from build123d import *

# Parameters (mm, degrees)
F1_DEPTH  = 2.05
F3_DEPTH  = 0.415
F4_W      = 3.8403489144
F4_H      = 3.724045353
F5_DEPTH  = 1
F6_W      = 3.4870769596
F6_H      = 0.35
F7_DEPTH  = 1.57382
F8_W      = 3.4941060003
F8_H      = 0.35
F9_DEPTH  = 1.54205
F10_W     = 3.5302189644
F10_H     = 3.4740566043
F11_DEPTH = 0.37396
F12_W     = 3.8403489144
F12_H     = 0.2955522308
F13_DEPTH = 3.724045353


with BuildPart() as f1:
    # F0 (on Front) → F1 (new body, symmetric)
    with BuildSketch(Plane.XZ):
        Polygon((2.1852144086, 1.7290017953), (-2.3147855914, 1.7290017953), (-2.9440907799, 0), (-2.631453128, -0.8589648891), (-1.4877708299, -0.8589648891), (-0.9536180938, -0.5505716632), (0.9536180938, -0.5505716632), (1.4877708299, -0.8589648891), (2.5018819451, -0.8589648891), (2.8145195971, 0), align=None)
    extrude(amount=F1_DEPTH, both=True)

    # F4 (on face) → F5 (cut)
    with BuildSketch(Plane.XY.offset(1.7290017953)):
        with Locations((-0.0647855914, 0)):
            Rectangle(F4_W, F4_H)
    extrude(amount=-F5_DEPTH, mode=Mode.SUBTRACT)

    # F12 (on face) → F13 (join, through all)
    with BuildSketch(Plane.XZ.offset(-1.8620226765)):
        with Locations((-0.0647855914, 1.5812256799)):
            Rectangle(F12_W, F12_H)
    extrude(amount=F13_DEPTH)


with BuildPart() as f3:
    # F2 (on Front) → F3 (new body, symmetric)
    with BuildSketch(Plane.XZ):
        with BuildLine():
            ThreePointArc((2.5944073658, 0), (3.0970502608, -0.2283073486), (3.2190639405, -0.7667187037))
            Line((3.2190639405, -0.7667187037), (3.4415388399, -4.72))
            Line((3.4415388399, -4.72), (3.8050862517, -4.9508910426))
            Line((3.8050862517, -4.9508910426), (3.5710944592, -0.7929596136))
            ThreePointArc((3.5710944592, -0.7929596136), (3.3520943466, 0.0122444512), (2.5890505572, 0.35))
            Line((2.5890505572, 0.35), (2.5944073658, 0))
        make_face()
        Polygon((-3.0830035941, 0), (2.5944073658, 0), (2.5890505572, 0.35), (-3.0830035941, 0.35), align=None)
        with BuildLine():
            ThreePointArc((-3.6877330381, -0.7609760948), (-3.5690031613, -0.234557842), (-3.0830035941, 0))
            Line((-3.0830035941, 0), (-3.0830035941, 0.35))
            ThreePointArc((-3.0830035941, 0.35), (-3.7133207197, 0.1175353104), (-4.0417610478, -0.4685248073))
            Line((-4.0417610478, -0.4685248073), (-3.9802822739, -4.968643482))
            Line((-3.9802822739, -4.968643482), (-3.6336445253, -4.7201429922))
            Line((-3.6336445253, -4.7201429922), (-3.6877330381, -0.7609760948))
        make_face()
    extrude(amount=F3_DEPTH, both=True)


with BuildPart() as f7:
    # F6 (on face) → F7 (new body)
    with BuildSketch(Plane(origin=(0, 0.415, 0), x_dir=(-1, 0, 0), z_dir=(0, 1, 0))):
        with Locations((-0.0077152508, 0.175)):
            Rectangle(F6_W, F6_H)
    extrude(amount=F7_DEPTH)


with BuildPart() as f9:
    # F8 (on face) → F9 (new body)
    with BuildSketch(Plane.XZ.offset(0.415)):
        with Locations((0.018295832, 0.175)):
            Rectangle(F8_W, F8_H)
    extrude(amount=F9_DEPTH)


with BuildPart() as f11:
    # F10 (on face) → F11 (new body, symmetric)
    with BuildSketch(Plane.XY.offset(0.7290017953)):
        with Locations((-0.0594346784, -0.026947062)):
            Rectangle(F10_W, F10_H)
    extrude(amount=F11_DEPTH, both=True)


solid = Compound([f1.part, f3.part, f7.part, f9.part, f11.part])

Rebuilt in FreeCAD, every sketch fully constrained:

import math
import FreeCAD as App
import Part
import Sketcher
Q = App.Units.Quantity

doc = App.newDocument("Part")
params = doc.addObject("Spreadsheet::Sheet", "Params")
for row, (alias, value) in enumerate([
    ("sketch1_width", "4.5 mm"),
    ("pad1_length", "4.1 mm"),
    ("pocket1_length", "1 mm"),
    ("pad3_length", "0.83 mm"),
    ("sketch5_height", "0.35 mm"),
    ("pad4_length", "1.57382 mm"),
    ("sketch6_height", "0.35 mm"),
    ("pad5_length", "1.54205 mm"),
    ("pad6_length", "0.74792 mm"),
], start=1):
    params.set(f"A{row}", alias)
    params.set(f"B{row}", "=" + value)
    params.setAlias(f"B{row}", alias)

body = doc.addObject("PartDesign::Body", "Body")

# Sketch on XZ plane
sketch1 = body.newObject("Sketcher::SketchObject", "Sketch")
sketch1.AttachmentSupport = (doc.getObject("XZ_Plane"), [""])
sketch1.MapMode = "FlatFace"
sketch1.addGeometry(Part.LineSegment(App.Vector(2.185214, 1.729002, 0), App.Vector(-2.314786, 1.729002, 0)), False)
sketch1.addGeometry(Part.LineSegment(App.Vector(-2.314786, 1.729002, 0), App.Vector(-2.944091, 0, 0)), False)
sketch1.addGeometry(Part.LineSegment(App.Vector(-2.944091, 0, 0), App.Vector(-2.631453, -0.858965, 0)), False)
sketch1.addGeometry(Part.LineSegment(App.Vector(-2.631453, -0.858965, 0), App.Vector(-1.487771, -0.858965, 0)), False)
sketch1.addGeometry(Part.LineSegment(App.Vector(-1.487771, -0.858965, 0), App.Vector(-0.953618, -0.550572, 0)), False)
sketch1.addGeometry(Part.LineSegment(App.Vector(-0.953618, -0.550572, 0), App.Vector(0.953618, -0.550572, 0)), False)
sketch1.addGeometry(Part.LineSegment(App.Vector(0.953618, -0.550572, 0), App.Vector(1.487771, -0.858965, 0)), False)
sketch1.addGeometry(Part.LineSegment(App.Vector(1.487771, -0.858965, 0), App.Vector(2.501882, -0.858965, 0)), False)
sketch1.addGeometry(Part.LineSegment(App.Vector(2.501882, -0.858965, 0), App.Vector(2.81452, 0, 0)), False)
sketch1.addGeometry(Part.LineSegment(App.Vector(2.81452, 0, 0), App.Vector(2.185214, 1.729002, 0)), False)
sketch1.addConstraint(Sketcher.Constraint("Coincident", 0, 2, 1, 1))
sketch1.addConstraint(Sketcher.Constraint("Coincident", 1, 2, 2, 1))
sketch1.addConstraint(Sketcher.Constraint("Coincident", 2, 2, 3, 1))
sketch1.addConstraint(Sketcher.Constraint("Coincident", 3, 2, 4, 1))
sketch1.addConstraint(Sketcher.Constraint("Coincident", 4, 2, 5, 1))
sketch1.addConstraint(Sketcher.Constraint("Coincident", 5, 2, 6, 1))
sketch1.addConstraint(Sketcher.Constraint("Coincident", 6, 2, 7, 1))
sketch1.addConstraint(Sketcher.Constraint("Coincident", 7, 2, 8, 1))
sketch1.addConstraint(Sketcher.Constraint("Coincident", 8, 2, 9, 1))
sketch1.addConstraint(Sketcher.Constraint("Coincident", 9, 2, 0, 1))
sketch1.addConstraint(Sketcher.Constraint("Horizontal", 0))
sketch1.addConstraint(Sketcher.Constraint("Horizontal", 3))
sketch1.addConstraint(Sketcher.Constraint("Horizontal", 5))
sketch1.addConstraint(Sketcher.Constraint("Horizontal", 7))
sketch1.addConstraint(Sketcher.Constraint("Symmetric", 3, 2, 6, 2, -2))
sketch1.addConstraint(Sketcher.Constraint("PointOnObject", 1, 2, -1))
sketch1.addConstraint(Sketcher.Constraint("PointOnObject", 8, 2, -1))
sketch1.addConstraint(Sketcher.Constraint("Parallel", 1, 8))
sketch1.addConstraint(Sketcher.Constraint("Parallel", 2, 9))
sketch1.addConstraint(Sketcher.Constraint("Equal", 4, 6))
sketch1.addConstraint(Sketcher.Constraint("Equal", 2, 8))
sketch1.addConstraint(Sketcher.Constraint("Angle", 1, Q("-110 deg")))
sketch1.addConstraint(Sketcher.Constraint("Angle", 4, Q("30 deg")))
sketch1.addConstraint(Sketcher.Constraint("DistanceX", 0, 2, 0, 1, Q("4.5 mm")))
sketch1.addConstraint(Sketcher.Constraint("DistanceY", -1, 1, 0, 2, Q("1.729002 mm")))
sketch1.addConstraint(Sketcher.Constraint("DistanceX", 7, 1, 7, 2, Q("1.014111 mm")))
sketch1.addConstraint(Sketcher.Constraint("DistanceX", 4, 2, 7, 2, Q("3.4555 mm")))
sketch1.addConstraint(Sketcher.Constraint("DistanceX", 5, 2, 8, 2, Q("1.860902 mm")))
sketch1.addConstraint(Sketcher.Constraint("Distance", 2, Q("0.914091 mm")))
sketch1.setExpression("Constraints[23]", "Params.sketch1_width")
pad1 = body.newObject("PartDesign::Pad", "Pad")
pad1.Profile = sketch1
pad1.setExpression("Length", "Params.pad1_length")
pad1.Midplane = True

# Sketch on XY plane
sketch2 = body.newObject("Sketcher::SketchObject", "Sketch001")
sketch2.AttachmentSupport = (doc.getObject("XY_Plane"), [""])
sketch2.MapMode = "FlatFace"
sketch2.AttachmentOffset = App.Placement(App.Vector(0, 0, 1.729002), App.Rotation())
sketch2.addGeometry(Part.LineSegment(App.Vector(-1.98496, 1.862023, 0), App.Vector(-1.98496, -1.862023, 0)), False)
sketch2.addGeometry(Part.LineSegment(App.Vector(-1.98496, -1.862023, 0), App.Vector(1.855389, -1.862023, 0)), False)
sketch2.addGeometry(Part.LineSegment(App.Vector(1.855389, -1.862023, 0), App.Vector(1.855389, 1.862023, 0)), False)
sketch2.addGeometry(Part.LineSegment(App.Vector(1.855389, 1.862023, 0), App.Vector(-1.98496, 1.862023, 0)), False)
sketch2.addConstraint(Sketcher.Constraint("Coincident", 0, 2, 1, 1))
sketch2.addConstraint(Sketcher.Constraint("Coincident", 1, 2, 2, 1))
sketch2.addConstraint(Sketcher.Constraint("Coincident", 2, 2, 3, 1))
sketch2.addConstraint(Sketcher.Constraint("Coincident", 3, 2, 0, 1))
sketch2.addConstraint(Sketcher.Constraint("Vertical", 0))
sketch2.addConstraint(Sketcher.Constraint("Horizontal", 1))
sketch2.addConstraint(Sketcher.Constraint("Vertical", 2))
sketch2.addConstraint(Sketcher.Constraint("Horizontal", 3))
sketch2.addConstraint(Sketcher.Constraint("DistanceX", 1, 1, 1, 2, Q("3.840349 mm")))
sketch2.addConstraint(Sketcher.Constraint("DistanceY", 0, 2, 0, 1, Q("3.724045 mm")))
sketch2.addConstraint(Sketcher.Constraint("DistanceX", 0, 2, -1, 1, Q("1.98496 mm")))
sketch2.addConstraint(Sketcher.Constraint("DistanceY", 0, 2, -1, 1, Q("1.862023 mm")))
pocket1 = body.newObject("PartDesign::Pocket", "Pocket")
pocket1.Profile = sketch2
pocket1.setExpression("Length", "Params.pocket1_length")

# Sketch on XZ plane
sketch3 = body.newObject("Sketcher::SketchObject", "Sketch002")
sketch3.AttachmentSupport = (doc.getObject("XZ_Plane"), [""])
sketch3.MapMode = "FlatFace"
sketch3.AttachmentOffset = App.Placement(App.Vector(0, 0, -1.862023), App.Rotation())
sketch3.addGeometry(Part.LineSegment(App.Vector(-1.98496, 1.729002, 0), App.Vector(-1.98496, 1.43345, 0)), False)
sketch3.addGeometry(Part.LineSegment(App.Vector(-1.98496, 1.43345, 0), App.Vector(1.855389, 1.43345, 0)), False)
sketch3.addGeometry(Part.LineSegment(App.Vector(1.855389, 1.43345, 0), App.Vector(1.855389, 1.729002, 0)), False)
sketch3.addGeometry(Part.LineSegment(App.Vector(1.855389, 1.729002, 0), App.Vector(-1.98496, 1.729002, 0)), False)
sketch3.addConstraint(Sketcher.Constraint("Coincident", 0, 2, 1, 1))
sketch3.addConstraint(Sketcher.Constraint("Coincident", 1, 2, 2, 1))
sketch3.addConstraint(Sketcher.Constraint("Coincident", 2, 2, 3, 1))
sketch3.addConstraint(Sketcher.Constraint("Coincident", 3, 2, 0, 1))
sketch3.addConstraint(Sketcher.Constraint("Vertical", 0))
sketch3.addConstraint(Sketcher.Constraint("Horizontal", 1))
sketch3.addConstraint(Sketcher.Constraint("Vertical", 2))
sketch3.addConstraint(Sketcher.Constraint("Horizontal", 3))
sketch3.addConstraint(Sketcher.Constraint("DistanceY", -1, 1, 2, 2, Q("1.729002 mm")))
sketch3.addConstraint(Sketcher.Constraint("DistanceX", 1, 1, 1, 2, Q("3.840349 mm")))
sketch3.addConstraint(Sketcher.Constraint("DistanceY", 0, 2, 0, 1, Q("0.295552 mm")))
sketch3.addConstraint(Sketcher.Constraint("DistanceX", 0, 2, -1, 1, Q("1.98496 mm")))
pad2 = body.newObject("PartDesign::Pad", "Pad001")
pad2.Profile = sketch3
pad2.Type = "UpToLast"
body2 = doc.addObject("PartDesign::Body", "Body001")

# Sketch on XZ plane
sketch4 = body2.newObject("Sketcher::SketchObject", "Sketch003")
sketch4.AttachmentSupport = (doc.getObject("XZ_Plane001"), [""])
sketch4.MapMode = "FlatFace"
sketch4.addGeometry(Part.ArcOfCircle(Part.Circle(App.Vector(2.615784, -0.620402, 0), App.Vector(0, 0, 1), 0.62077), math.radians(-13.633016), math.radians(91.973398)), False)
sketch4.addGeometry(Part.LineSegment(App.Vector(3.219064, -0.766719, 0), App.Vector(3.441539, -4.72, 0)), False)
sketch4.addGeometry(Part.LineSegment(App.Vector(3.441539, -4.72, 0), App.Vector(3.805086, -4.950891, 0)), False)
sketch4.addGeometry(Part.LineSegment(App.Vector(3.805086, -4.950891, 0), App.Vector(3.571094, -0.79296, 0)), False)
sketch4.addGeometry(Part.ArcOfCircle(Part.Circle(App.Vector(2.615784, -0.620402, 0), App.Vector(0, 0, 1), 0.97077), math.radians(-10.238933), math.radians(91.578026)), False)
sketch4.addGeometry(Part.LineSegment(App.Vector(2.589051, 0.35, 0), App.Vector(-3.083004, 0.35, 0)), False)
sketch4.addGeometry(Part.ArcOfCircle(Part.Circle(App.Vector(-3.083004, -0.62077, 0), App.Vector(0, 0, 1), 0.97077), math.radians(90), math.radians(170.977092)), False)
sketch4.addGeometry(Part.LineSegment(App.Vector(-4.041761, -0.468525, 0), App.Vector(-3.980282, -4.968643, 0)), False)
sketch4.addGeometry(Part.LineSegment(App.Vector(-3.980282, -4.968643, 0), App.Vector(-3.633645, -4.720143, 0)), False)
sketch4.addGeometry(Part.LineSegment(App.Vector(-3.633645, -4.720143, 0), App.Vector(-3.687733, -0.760976, 0)), False)
sketch4.addGeometry(Part.ArcOfCircle(Part.Circle(App.Vector(-3.083004, -0.62077, 0), App.Vector(0, 0, 1), 0.62077), math.radians(90), math.radians(193.053354)), False)
sketch4.addGeometry(Part.LineSegment(App.Vector(-3.083004, 0, 0), App.Vector(2.594407, 0, 0)), False)
sketch4.addConstraint(Sketcher.Constraint("Coincident", 0, 1, 1, 1))
sketch4.addConstraint(Sketcher.Constraint("Coincident", 1, 2, 2, 1))
sketch4.addConstraint(Sketcher.Constraint("Coincident", 2, 2, 3, 1))
sketch4.addConstraint(Sketcher.Constraint("Coincident", 3, 2, 4, 1))
sketch4.addConstraint(Sketcher.Constraint("Coincident", 4, 2, 5, 1))
sketch4.addConstraint(Sketcher.Constraint("Tangent", 5, 2, 6, 1))
sketch4.addConstraint(Sketcher.Constraint("Coincident", 6, 2, 7, 1))
sketch4.addConstraint(Sketcher.Constraint("Coincident", 7, 2, 8, 1))
sketch4.addConstraint(Sketcher.Constraint("Coincident", 8, 2, 9, 1))
sketch4.addConstraint(Sketcher.Constraint("Coincident", 9, 2, 10, 2))
sketch4.addConstraint(Sketcher.Constraint("Tangent", 10, 1, 11, 1))
sketch4.addConstraint(Sketcher.Constraint("Coincident", 11, 2, 0, 2))
sketch4.addConstraint(Sketcher.Constraint("Horizontal", 5))
sketch4.addConstraint(Sketcher.Constraint("Horizontal", 11))
sketch4.addConstraint(Sketcher.Constraint("Coincident", 4, 3, 0, 3))
sketch4.addConstraint(Sketcher.Constraint("Coincident", 10, 3, 6, 3))
sketch4.addConstraint(Sketcher.Constraint("Equal", 4, 6))
sketch4.addConstraint(Sketcher.Constraint("Equal", 0, 10))
sketch4.addConstraint(Sketcher.Constraint("PointOnObject", 10, 1, -1))
sketch4.addConstraint(Sketcher.Constraint("Parallel", 1, 3))
sketch4.addConstraint(Sketcher.Constraint("Parallel", 7, 9))
sketch4.addConstraint(Sketcher.Constraint("Equal", 1, 9))
sketch4.addConstraint(Sketcher.Constraint("DistanceY", 1, 2, -1, 1, Q("4.72 mm")))
sketch4.addConstraint(Sketcher.Constraint("DistanceY", -1, 1, 4, 2, Q("0.35 mm")))
sketch4.addConstraint(Sketcher.Constraint("Radius", 0, Q("0.62077 mm")))
sketch4.addConstraint(Sketcher.Constraint("DistanceX", 11, 1, 11, 2, Q("5.677411 mm")))
sketch4.addConstraint(Sketcher.Constraint("DistanceY", 0, 3, -1, 1, Q("0.620402 mm")))
sketch4.addConstraint(Sketcher.Constraint("DistanceY", 7, 2, 8, 2, Q("0.2485 mm")))
sketch4.addConstraint(Sketcher.Constraint("Distance", 2, Q("0.430671 mm")))
sketch4.addConstraint(Sketcher.Constraint("Distance", 3, Q("4.16451 mm")))
sketch4.addConstraint(Sketcher.Constraint("Distance", 7, Q("4.500539 mm")))
sketch4.addConstraint(Sketcher.Constraint("Distance", 8, Q("0.426509 mm")))
sketch4.addConstraint(Sketcher.Constraint("DistanceY", 0, 1, -1, 1, Q("0.766719 mm")))
sketch4.addConstraint(Sketcher.Constraint("DistanceX", -1, 1, 1, 2, Q("3.441539 mm")))
sketch4.addConstraint(Sketcher.Constraint("DistanceY", 2, 2, -1, 1, Q("4.950891 mm")))
sketch4.addConstraint(Sketcher.Constraint("DistanceX", 6, 2, -1, 1, Q("4.041761 mm")))
pad3 = body2.newObject("PartDesign::Pad", "Pad002")
pad3.Profile = sketch4
pad3.setExpression("Length", "Params.pad3_length")
pad3.Midplane = True
body3 = doc.addObject("PartDesign::Body", "Body002")

# Sketch on XZ plane
sketch5 = body3.newObject("Sketcher::SketchObject", "Sketch004")
sketch5.AttachmentSupport = (doc.getObject("XZ_Plane002"), [""])
sketch5.MapMode = "FlatFace"
sketch5.AttachmentOffset = App.Placement(App.Vector(0, 0, -0.415), App.Rotation())
sketch5.addGeometry(Part.LineSegment(App.Vector(1.751254, 0.35, 0), App.Vector(1.751254, 0, 0)), False)
sketch5.addGeometry(Part.LineSegment(App.Vector(1.751254, 0, 0), App.Vector(-1.735823, 0, 0)), False)
sketch5.addGeometry(Part.LineSegment(App.Vector(-1.735823, 0, 0), App.Vector(-1.735823, 0.35, 0)), False)
sketch5.addGeometry(Part.LineSegment(App.Vector(-1.735823, 0.35, 0), App.Vector(1.751254, 0.35, 0)), False)
sketch5.addConstraint(Sketcher.Constraint("Coincident", 0, 2, 1, 1))
sketch5.addConstraint(Sketcher.Constraint("Coincident", 1, 2, 2, 1))
sketch5.addConstraint(Sketcher.Constraint("Coincident", 2, 2, 3, 1))
sketch5.addConstraint(Sketcher.Constraint("Coincident", 3, 2, 0, 1))
sketch5.addConstraint(Sketcher.Constraint("Vertical", 0))
sketch5.addConstraint(Sketcher.Constraint("Horizontal", 1))
sketch5.addConstraint(Sketcher.Constraint("Vertical", 2))
sketch5.addConstraint(Sketcher.Constraint("Horizontal", 3))
sketch5.addConstraint(Sketcher.Constraint("PointOnObject", 0, 2, -1))
sketch5.addConstraint(Sketcher.Constraint("DistanceY", 0, 2, 0, 1, Q("0.35 mm")))
sketch5.addConstraint(Sketcher.Constraint("DistanceX", 1, 2, 1, 1, Q("3.487077 mm")))
sketch5.addConstraint(Sketcher.Constraint("DistanceX", -1, 1, 0, 2, Q("1.751254 mm")))
sketch5.setExpression("Constraints[9]", "Params.sketch5_height")
pad4 = body3.newObject("PartDesign::Pad", "Pad003")
pad4.Profile = sketch5
pad4.setExpression("Length", "Params.pad4_length")
pad4.Reversed = True
body4 = doc.addObject("PartDesign::Body", "Body003")

# Sketch on XZ plane
sketch6 = body4.newObject("Sketcher::SketchObject", "Sketch005")
sketch6.AttachmentSupport = (doc.getObject("XZ_Plane003"), [""])
sketch6.MapMode = "FlatFace"
sketch6.AttachmentOffset = App.Placement(App.Vector(0, 0, 0.415), App.Rotation())
sketch6.addGeometry(Part.LineSegment(App.Vector(-1.728757, 0.35, 0), App.Vector(-1.728757, 0, 0)), False)
sketch6.addGeometry(Part.LineSegment(App.Vector(-1.728757, 0, 0), App.Vector(1.765349, 0, 0)), False)
sketch6.addGeometry(Part.LineSegment(App.Vector(1.765349, 0, 0), App.Vector(1.765349, 0.35, 0)), False)
sketch6.addGeometry(Part.LineSegment(App.Vector(1.765349, 0.35, 0), App.Vector(-1.728757, 0.35, 0)), False)
sketch6.addConstraint(Sketcher.Constraint("Coincident", 0, 2, 1, 1))
sketch6.addConstraint(Sketcher.Constraint("Coincident", 1, 2, 2, 1))
sketch6.addConstraint(Sketcher.Constraint("Coincident", 2, 2, 3, 1))
sketch6.addConstraint(Sketcher.Constraint("Coincident", 3, 2, 0, 1))
sketch6.addConstraint(Sketcher.Constraint("Vertical", 0))
sketch6.addConstraint(Sketcher.Constraint("Horizontal", 1))
sketch6.addConstraint(Sketcher.Constraint("Vertical", 2))
sketch6.addConstraint(Sketcher.Constraint("Horizontal", 3))
sketch6.addConstraint(Sketcher.Constraint("PointOnObject", 0, 2, -1))
sketch6.addConstraint(Sketcher.Constraint("DistanceY", 0, 2, 0, 1, Q("0.35 mm")))
sketch6.addConstraint(Sketcher.Constraint("DistanceX", 1, 1, 1, 2, Q("3.494106 mm")))
sketch6.addConstraint(Sketcher.Constraint("DistanceX", -1, 1, 1, 2, Q("1.765349 mm")))
sketch6.setExpression("Constraints[9]", "Params.sketch6_height")
pad5 = body4.newObject("PartDesign::Pad", "Pad004")
pad5.Profile = sketch6
pad5.setExpression("Length", "Params.pad5_length")
body5 = doc.addObject("PartDesign::Body", "Body004")

# Sketch on XY plane
sketch7 = body5.newObject("Sketcher::SketchObject", "Sketch006")
sketch7.AttachmentSupport = (doc.getObject("XY_Plane004"), [""])
sketch7.MapMode = "FlatFace"
sketch7.AttachmentOffset = App.Placement(App.Vector(0, 0, 0.729002), App.Rotation())
sketch7.addGeometry(Part.LineSegment(App.Vector(-1.824544, 1.710081, 0), App.Vector(-1.824544, -1.763975, 0)), False)
sketch7.addGeometry(Part.LineSegment(App.Vector(-1.824544, -1.763975, 0), App.Vector(1.705675, -1.763975, 0)), False)
sketch7.addGeometry(Part.LineSegment(App.Vector(1.705675, -1.763975, 0), App.Vector(1.705675, 1.710081, 0)), False)
sketch7.addGeometry(Part.LineSegment(App.Vector(1.705675, 1.710081, 0), App.Vector(-1.824544, 1.710081, 0)), False)
sketch7.addConstraint(Sketcher.Constraint("Coincident", 0, 2, 1, 1))
sketch7.addConstraint(Sketcher.Constraint("Coincident", 1, 2, 2, 1))
sketch7.addConstraint(Sketcher.Constraint("Coincident", 2, 2, 3, 1))
sketch7.addConstraint(Sketcher.Constraint("Coincident", 3, 2, 0, 1))
sketch7.addConstraint(Sketcher.Constraint("Vertical", 0))
sketch7.addConstraint(Sketcher.Constraint("Horizontal", 1))
sketch7.addConstraint(Sketcher.Constraint("Vertical", 2))
sketch7.addConstraint(Sketcher.Constraint("Horizontal", 3))
sketch7.addConstraint(Sketcher.Constraint("DistanceX", 1, 1, 1, 2, Q("3.530219 mm")))
sketch7.addConstraint(Sketcher.Constraint("DistanceY", 0, 2, 0, 1, Q("3.474057 mm")))
sketch7.addConstraint(Sketcher.Constraint("DistanceY", -1, 1, 2, 2, Q("1.710081 mm")))
sketch7.addConstraint(Sketcher.Constraint("DistanceX", 0, 2, -1, 1, Q("1.824544 mm")))
pad6 = body5.newObject("PartDesign::Pad", "Pad005")
pad6.Profile = sketch7
pad6.setExpression("Length", "Params.pad6_length")
pad6.Midplane = True

doc.recompute()
